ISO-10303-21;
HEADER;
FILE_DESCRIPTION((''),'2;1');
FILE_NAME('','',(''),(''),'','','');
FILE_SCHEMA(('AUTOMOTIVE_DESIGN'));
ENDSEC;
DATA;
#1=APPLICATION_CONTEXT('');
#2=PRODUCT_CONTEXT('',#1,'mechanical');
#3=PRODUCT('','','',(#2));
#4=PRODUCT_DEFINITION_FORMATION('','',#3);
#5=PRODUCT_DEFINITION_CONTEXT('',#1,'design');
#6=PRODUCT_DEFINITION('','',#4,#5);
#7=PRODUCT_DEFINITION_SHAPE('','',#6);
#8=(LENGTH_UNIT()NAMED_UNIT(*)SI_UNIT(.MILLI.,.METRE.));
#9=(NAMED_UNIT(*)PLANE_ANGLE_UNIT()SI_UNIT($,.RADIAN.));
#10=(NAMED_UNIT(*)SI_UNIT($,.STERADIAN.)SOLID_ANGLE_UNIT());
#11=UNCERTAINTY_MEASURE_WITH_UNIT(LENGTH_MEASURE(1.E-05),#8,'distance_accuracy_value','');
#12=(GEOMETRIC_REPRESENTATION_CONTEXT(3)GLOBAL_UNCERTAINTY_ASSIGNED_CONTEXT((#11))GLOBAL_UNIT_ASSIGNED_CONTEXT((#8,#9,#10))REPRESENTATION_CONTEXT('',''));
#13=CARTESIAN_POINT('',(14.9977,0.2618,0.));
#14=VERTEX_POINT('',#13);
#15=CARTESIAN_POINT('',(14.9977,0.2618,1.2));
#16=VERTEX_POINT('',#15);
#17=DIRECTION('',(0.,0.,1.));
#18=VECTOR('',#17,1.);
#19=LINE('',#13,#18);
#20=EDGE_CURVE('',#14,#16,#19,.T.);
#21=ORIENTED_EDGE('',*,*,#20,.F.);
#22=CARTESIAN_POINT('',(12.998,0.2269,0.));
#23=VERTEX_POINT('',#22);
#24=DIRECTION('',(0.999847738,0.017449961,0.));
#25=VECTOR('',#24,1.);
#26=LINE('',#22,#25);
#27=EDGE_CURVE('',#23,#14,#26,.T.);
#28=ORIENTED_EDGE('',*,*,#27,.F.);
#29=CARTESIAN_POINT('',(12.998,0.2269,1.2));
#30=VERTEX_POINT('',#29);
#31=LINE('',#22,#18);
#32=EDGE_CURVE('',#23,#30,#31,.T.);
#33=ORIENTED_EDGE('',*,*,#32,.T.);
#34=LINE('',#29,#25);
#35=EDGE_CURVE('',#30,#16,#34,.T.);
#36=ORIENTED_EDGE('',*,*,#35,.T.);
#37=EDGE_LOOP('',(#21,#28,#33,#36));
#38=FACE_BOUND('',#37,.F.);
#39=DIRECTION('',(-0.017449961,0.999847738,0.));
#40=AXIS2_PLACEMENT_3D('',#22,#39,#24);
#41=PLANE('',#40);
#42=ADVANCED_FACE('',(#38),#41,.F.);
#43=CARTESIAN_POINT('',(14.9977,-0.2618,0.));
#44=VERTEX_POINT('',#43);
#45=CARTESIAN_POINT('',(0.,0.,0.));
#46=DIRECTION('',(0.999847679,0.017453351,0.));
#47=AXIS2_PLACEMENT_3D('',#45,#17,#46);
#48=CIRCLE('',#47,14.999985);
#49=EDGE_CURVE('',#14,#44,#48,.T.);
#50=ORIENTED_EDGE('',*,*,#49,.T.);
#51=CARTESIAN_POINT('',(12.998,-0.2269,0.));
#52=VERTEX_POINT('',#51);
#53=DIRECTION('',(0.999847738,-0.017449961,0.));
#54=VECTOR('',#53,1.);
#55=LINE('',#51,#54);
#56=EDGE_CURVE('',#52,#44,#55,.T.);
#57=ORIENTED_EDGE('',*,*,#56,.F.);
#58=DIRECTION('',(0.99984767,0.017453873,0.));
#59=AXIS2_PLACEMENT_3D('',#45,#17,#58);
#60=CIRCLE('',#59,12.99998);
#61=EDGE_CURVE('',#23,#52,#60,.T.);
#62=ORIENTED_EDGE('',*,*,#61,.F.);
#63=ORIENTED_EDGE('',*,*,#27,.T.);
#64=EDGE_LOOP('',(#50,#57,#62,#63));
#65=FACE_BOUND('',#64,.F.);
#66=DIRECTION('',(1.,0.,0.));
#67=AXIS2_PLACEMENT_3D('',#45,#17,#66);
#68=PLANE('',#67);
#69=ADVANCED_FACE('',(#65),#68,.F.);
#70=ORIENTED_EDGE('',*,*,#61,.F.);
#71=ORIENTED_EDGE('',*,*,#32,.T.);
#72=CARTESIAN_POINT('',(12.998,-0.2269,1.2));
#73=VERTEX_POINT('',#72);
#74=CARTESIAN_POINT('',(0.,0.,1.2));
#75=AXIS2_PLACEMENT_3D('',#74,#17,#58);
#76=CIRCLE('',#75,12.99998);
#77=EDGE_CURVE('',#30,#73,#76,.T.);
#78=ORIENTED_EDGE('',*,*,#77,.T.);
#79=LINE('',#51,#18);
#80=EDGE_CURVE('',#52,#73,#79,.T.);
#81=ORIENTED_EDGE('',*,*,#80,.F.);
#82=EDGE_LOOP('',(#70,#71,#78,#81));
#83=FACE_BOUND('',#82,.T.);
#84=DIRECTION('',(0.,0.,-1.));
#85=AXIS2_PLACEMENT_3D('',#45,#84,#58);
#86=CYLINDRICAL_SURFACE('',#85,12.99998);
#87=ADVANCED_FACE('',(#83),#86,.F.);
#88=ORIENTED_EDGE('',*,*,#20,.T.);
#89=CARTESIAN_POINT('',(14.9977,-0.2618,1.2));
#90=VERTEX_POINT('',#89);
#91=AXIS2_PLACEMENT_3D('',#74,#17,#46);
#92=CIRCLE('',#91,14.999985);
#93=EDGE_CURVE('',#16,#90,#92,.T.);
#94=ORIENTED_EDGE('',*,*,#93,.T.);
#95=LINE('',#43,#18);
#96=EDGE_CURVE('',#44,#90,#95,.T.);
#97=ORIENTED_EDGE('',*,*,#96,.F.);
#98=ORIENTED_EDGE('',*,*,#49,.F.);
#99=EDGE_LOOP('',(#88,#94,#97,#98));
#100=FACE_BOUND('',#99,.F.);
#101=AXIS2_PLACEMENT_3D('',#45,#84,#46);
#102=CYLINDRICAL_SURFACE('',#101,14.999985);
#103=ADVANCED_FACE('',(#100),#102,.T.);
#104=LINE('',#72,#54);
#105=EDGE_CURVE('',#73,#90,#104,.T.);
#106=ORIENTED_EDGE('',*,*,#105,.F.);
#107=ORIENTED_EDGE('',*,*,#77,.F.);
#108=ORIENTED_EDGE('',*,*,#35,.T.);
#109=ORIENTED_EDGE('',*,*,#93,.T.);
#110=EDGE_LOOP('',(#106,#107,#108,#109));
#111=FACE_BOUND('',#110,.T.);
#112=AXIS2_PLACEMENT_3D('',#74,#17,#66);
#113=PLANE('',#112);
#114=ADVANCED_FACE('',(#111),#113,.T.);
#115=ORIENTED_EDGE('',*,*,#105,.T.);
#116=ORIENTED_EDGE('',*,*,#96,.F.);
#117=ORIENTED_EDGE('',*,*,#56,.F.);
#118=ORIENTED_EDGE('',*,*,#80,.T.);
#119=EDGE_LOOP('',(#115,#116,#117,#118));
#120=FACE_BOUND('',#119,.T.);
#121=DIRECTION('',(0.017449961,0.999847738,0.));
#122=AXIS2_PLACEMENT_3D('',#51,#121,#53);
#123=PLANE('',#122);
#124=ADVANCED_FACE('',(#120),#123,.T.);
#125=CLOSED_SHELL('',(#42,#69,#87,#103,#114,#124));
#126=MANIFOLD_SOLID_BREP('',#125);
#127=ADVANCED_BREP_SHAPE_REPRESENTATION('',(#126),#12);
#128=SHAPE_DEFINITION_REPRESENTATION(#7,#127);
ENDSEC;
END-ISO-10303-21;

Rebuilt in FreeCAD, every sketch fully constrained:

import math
import FreeCAD as App
import Part
import Sketcher
Q = App.Units.Quantity

doc = App.newDocument("Part")
body = doc.addObject("PartDesign::Body", "Body")

sketch1 = doc.addObject("Sketcher::SketchObject", "Sketch")
body.addObject(sketch1)
sketch1.AttachmentSupport = (doc.XY_Plane, [""])
sketch1.MapMode = "FlatFace"
sketch1.addGeometry(Part.ArcOfCircle(Part.Circle(App.Vector(0, 0, 0), App.Vector(0, 0, 1), 12.99998), math.radians(1.000084), math.radians(358.999916)), False)
sketch1.addGeometry(Part.LineSegment(App.Vector(12.998, 0.2269, 0), App.Vector(14.9977, 0.2618, 0)), False)
sketch1.addGeometry(Part.ArcOfCircle(Part.Circle(App.Vector(0, 0, 0), App.Vector(0, 0, 1), 14.999985), math.radians(1.000054), math.radians(358.999946)), False)
sketch1.addGeometry(Part.LineSegment(App.Vector(14.9977, -0.2618, 0), App.Vector(12.998, -0.2269, 0)), False)
sketch1.addConstraint(Sketcher.Constraint("Coincident", 0, 1, 1, 1))
sketch1.addConstraint(Sketcher.Constraint("Coincident", 1, 2, 2, 1))
sketch1.addConstraint(Sketcher.Constraint("Coincident", 2, 2, 3, 1))
sketch1.addConstraint(Sketcher.Constraint("Coincident", 3, 2, 0, 2))
sketch1.addConstraint(Sketcher.Constraint("Coincident", 0, 3, -1, 1))
sketch1.addConstraint(Sketcher.Constraint("Coincident", 2, 3, -1, 1))
sketch1.addConstraint(Sketcher.Constraint("Vertical", 1, 2, 2, 2))
sketch1.addConstraint(Sketcher.Constraint("Vertical", 0, 1, 3, 2))
sketch1.addConstraint(Sketcher.Constraint("Radius", 2, 15.0))
sketch1.addConstraint(Sketcher.Constraint("Distance", 1, 2.0))
sketch1.addConstraint(Sketcher.Constraint("Angle", 1, Q("0.9999 deg")))
sketch1.addConstraint(Sketcher.Constraint("DistanceX", -1, 1, 0, 1, 12.998))
pad1 = doc.addObject("PartDesign::Pad", "Pad")
body.addObject(pad1)
pad1.Profile = sketch1
pad1.Length = 1.2

doc.recompute()
